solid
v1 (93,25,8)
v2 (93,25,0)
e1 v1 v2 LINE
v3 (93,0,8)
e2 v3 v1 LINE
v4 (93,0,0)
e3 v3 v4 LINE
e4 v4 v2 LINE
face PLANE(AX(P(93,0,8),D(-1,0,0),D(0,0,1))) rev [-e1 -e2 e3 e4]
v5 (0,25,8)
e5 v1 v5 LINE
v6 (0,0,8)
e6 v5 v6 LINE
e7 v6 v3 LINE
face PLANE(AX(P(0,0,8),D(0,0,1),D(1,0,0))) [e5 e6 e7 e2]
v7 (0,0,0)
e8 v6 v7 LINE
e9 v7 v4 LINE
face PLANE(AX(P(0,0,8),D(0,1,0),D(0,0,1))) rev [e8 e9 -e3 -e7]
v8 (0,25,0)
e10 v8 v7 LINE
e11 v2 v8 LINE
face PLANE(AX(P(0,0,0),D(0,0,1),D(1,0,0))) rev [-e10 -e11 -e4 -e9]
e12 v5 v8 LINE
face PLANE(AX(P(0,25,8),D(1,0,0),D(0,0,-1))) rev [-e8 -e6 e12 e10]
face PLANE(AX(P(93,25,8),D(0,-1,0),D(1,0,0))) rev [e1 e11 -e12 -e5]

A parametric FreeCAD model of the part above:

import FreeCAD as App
import Part
import Sketcher
from FreeCAD import Vector
Q = App.Units.Quantity


def add_polygon(sketch, points):
    """Adds a closed chain of lines whose ends are joined by coincident constraints."""
    first, n = sketch.GeometryCount, len(points)
    for a, b in zip(points, points[1:] + points[:1]):
        sketch.addGeometry(Part.LineSegment(App.Vector(*a, 0), App.Vector(*b, 0)), False)
    for i in range(n):
        sketch.addConstraint(Sketcher.Constraint("Coincident", first + i, 2, first + (i + 1) % n, 1))

doc = App.newDocument("Part")
params = doc.addObject("Spreadsheet::Sheet", "Params")
for row, (alias, value) in enumerate([
    ("sketch1_width", "93 mm"),
    ("sketch1_height", "25 mm"),
    ("pad1_length", "8 mm"),
], start=1):
    params.set(f"A{row}", alias)
    params.set(f"B{row}", "=" + value)
    params.setAlias(f"B{row}", alias)

body = doc.addObject("PartDesign::Body", "Body")

# Sketch on XY plane
sketch1 = doc.addObject("Sketcher::SketchObject", "Sketch")
body.addObject(sketch1)
sketch1.AttachmentSupport = (doc.XY_Plane, [""])
sketch1.MapMode = "FlatFace"
add_polygon(sketch1, [(0, 25), (0, 0), (93, 0), (93, 25)])  # lines 0-3
sketch1.addConstraint(Sketcher.Constraint("Vertical", 0))
sketch1.addConstraint(Sketcher.Constraint("Horizontal", 1))
sketch1.addConstraint(Sketcher.Constraint("Vertical", 2))
sketch1.addConstraint(Sketcher.Constraint("Horizontal", 3))
sketch1.addConstraint(Sketcher.Constraint("Coincident", 0, 2, -1, 1))
sketch1.addConstraint(Sketcher.Constraint("DistanceX", 1, 1, 1, 2, Q("93 mm")))
sketch1.addConstraint(Sketcher.Constraint("DistanceY", 0, 2, 0, 1, Q("25 mm")))
sketch1.setExpression("Constraints[9]", "Params.sketch1_width")
sketch1.setExpression("Constraints[10]", "Params.sketch1_height")
pad1 = doc.addObject("PartDesign::Pad", "Pad")
body.addObject(pad1)
pad1.Profile = sketch1
pad1.setExpression("Length", "Params.pad1_length")

doc.recompute()
